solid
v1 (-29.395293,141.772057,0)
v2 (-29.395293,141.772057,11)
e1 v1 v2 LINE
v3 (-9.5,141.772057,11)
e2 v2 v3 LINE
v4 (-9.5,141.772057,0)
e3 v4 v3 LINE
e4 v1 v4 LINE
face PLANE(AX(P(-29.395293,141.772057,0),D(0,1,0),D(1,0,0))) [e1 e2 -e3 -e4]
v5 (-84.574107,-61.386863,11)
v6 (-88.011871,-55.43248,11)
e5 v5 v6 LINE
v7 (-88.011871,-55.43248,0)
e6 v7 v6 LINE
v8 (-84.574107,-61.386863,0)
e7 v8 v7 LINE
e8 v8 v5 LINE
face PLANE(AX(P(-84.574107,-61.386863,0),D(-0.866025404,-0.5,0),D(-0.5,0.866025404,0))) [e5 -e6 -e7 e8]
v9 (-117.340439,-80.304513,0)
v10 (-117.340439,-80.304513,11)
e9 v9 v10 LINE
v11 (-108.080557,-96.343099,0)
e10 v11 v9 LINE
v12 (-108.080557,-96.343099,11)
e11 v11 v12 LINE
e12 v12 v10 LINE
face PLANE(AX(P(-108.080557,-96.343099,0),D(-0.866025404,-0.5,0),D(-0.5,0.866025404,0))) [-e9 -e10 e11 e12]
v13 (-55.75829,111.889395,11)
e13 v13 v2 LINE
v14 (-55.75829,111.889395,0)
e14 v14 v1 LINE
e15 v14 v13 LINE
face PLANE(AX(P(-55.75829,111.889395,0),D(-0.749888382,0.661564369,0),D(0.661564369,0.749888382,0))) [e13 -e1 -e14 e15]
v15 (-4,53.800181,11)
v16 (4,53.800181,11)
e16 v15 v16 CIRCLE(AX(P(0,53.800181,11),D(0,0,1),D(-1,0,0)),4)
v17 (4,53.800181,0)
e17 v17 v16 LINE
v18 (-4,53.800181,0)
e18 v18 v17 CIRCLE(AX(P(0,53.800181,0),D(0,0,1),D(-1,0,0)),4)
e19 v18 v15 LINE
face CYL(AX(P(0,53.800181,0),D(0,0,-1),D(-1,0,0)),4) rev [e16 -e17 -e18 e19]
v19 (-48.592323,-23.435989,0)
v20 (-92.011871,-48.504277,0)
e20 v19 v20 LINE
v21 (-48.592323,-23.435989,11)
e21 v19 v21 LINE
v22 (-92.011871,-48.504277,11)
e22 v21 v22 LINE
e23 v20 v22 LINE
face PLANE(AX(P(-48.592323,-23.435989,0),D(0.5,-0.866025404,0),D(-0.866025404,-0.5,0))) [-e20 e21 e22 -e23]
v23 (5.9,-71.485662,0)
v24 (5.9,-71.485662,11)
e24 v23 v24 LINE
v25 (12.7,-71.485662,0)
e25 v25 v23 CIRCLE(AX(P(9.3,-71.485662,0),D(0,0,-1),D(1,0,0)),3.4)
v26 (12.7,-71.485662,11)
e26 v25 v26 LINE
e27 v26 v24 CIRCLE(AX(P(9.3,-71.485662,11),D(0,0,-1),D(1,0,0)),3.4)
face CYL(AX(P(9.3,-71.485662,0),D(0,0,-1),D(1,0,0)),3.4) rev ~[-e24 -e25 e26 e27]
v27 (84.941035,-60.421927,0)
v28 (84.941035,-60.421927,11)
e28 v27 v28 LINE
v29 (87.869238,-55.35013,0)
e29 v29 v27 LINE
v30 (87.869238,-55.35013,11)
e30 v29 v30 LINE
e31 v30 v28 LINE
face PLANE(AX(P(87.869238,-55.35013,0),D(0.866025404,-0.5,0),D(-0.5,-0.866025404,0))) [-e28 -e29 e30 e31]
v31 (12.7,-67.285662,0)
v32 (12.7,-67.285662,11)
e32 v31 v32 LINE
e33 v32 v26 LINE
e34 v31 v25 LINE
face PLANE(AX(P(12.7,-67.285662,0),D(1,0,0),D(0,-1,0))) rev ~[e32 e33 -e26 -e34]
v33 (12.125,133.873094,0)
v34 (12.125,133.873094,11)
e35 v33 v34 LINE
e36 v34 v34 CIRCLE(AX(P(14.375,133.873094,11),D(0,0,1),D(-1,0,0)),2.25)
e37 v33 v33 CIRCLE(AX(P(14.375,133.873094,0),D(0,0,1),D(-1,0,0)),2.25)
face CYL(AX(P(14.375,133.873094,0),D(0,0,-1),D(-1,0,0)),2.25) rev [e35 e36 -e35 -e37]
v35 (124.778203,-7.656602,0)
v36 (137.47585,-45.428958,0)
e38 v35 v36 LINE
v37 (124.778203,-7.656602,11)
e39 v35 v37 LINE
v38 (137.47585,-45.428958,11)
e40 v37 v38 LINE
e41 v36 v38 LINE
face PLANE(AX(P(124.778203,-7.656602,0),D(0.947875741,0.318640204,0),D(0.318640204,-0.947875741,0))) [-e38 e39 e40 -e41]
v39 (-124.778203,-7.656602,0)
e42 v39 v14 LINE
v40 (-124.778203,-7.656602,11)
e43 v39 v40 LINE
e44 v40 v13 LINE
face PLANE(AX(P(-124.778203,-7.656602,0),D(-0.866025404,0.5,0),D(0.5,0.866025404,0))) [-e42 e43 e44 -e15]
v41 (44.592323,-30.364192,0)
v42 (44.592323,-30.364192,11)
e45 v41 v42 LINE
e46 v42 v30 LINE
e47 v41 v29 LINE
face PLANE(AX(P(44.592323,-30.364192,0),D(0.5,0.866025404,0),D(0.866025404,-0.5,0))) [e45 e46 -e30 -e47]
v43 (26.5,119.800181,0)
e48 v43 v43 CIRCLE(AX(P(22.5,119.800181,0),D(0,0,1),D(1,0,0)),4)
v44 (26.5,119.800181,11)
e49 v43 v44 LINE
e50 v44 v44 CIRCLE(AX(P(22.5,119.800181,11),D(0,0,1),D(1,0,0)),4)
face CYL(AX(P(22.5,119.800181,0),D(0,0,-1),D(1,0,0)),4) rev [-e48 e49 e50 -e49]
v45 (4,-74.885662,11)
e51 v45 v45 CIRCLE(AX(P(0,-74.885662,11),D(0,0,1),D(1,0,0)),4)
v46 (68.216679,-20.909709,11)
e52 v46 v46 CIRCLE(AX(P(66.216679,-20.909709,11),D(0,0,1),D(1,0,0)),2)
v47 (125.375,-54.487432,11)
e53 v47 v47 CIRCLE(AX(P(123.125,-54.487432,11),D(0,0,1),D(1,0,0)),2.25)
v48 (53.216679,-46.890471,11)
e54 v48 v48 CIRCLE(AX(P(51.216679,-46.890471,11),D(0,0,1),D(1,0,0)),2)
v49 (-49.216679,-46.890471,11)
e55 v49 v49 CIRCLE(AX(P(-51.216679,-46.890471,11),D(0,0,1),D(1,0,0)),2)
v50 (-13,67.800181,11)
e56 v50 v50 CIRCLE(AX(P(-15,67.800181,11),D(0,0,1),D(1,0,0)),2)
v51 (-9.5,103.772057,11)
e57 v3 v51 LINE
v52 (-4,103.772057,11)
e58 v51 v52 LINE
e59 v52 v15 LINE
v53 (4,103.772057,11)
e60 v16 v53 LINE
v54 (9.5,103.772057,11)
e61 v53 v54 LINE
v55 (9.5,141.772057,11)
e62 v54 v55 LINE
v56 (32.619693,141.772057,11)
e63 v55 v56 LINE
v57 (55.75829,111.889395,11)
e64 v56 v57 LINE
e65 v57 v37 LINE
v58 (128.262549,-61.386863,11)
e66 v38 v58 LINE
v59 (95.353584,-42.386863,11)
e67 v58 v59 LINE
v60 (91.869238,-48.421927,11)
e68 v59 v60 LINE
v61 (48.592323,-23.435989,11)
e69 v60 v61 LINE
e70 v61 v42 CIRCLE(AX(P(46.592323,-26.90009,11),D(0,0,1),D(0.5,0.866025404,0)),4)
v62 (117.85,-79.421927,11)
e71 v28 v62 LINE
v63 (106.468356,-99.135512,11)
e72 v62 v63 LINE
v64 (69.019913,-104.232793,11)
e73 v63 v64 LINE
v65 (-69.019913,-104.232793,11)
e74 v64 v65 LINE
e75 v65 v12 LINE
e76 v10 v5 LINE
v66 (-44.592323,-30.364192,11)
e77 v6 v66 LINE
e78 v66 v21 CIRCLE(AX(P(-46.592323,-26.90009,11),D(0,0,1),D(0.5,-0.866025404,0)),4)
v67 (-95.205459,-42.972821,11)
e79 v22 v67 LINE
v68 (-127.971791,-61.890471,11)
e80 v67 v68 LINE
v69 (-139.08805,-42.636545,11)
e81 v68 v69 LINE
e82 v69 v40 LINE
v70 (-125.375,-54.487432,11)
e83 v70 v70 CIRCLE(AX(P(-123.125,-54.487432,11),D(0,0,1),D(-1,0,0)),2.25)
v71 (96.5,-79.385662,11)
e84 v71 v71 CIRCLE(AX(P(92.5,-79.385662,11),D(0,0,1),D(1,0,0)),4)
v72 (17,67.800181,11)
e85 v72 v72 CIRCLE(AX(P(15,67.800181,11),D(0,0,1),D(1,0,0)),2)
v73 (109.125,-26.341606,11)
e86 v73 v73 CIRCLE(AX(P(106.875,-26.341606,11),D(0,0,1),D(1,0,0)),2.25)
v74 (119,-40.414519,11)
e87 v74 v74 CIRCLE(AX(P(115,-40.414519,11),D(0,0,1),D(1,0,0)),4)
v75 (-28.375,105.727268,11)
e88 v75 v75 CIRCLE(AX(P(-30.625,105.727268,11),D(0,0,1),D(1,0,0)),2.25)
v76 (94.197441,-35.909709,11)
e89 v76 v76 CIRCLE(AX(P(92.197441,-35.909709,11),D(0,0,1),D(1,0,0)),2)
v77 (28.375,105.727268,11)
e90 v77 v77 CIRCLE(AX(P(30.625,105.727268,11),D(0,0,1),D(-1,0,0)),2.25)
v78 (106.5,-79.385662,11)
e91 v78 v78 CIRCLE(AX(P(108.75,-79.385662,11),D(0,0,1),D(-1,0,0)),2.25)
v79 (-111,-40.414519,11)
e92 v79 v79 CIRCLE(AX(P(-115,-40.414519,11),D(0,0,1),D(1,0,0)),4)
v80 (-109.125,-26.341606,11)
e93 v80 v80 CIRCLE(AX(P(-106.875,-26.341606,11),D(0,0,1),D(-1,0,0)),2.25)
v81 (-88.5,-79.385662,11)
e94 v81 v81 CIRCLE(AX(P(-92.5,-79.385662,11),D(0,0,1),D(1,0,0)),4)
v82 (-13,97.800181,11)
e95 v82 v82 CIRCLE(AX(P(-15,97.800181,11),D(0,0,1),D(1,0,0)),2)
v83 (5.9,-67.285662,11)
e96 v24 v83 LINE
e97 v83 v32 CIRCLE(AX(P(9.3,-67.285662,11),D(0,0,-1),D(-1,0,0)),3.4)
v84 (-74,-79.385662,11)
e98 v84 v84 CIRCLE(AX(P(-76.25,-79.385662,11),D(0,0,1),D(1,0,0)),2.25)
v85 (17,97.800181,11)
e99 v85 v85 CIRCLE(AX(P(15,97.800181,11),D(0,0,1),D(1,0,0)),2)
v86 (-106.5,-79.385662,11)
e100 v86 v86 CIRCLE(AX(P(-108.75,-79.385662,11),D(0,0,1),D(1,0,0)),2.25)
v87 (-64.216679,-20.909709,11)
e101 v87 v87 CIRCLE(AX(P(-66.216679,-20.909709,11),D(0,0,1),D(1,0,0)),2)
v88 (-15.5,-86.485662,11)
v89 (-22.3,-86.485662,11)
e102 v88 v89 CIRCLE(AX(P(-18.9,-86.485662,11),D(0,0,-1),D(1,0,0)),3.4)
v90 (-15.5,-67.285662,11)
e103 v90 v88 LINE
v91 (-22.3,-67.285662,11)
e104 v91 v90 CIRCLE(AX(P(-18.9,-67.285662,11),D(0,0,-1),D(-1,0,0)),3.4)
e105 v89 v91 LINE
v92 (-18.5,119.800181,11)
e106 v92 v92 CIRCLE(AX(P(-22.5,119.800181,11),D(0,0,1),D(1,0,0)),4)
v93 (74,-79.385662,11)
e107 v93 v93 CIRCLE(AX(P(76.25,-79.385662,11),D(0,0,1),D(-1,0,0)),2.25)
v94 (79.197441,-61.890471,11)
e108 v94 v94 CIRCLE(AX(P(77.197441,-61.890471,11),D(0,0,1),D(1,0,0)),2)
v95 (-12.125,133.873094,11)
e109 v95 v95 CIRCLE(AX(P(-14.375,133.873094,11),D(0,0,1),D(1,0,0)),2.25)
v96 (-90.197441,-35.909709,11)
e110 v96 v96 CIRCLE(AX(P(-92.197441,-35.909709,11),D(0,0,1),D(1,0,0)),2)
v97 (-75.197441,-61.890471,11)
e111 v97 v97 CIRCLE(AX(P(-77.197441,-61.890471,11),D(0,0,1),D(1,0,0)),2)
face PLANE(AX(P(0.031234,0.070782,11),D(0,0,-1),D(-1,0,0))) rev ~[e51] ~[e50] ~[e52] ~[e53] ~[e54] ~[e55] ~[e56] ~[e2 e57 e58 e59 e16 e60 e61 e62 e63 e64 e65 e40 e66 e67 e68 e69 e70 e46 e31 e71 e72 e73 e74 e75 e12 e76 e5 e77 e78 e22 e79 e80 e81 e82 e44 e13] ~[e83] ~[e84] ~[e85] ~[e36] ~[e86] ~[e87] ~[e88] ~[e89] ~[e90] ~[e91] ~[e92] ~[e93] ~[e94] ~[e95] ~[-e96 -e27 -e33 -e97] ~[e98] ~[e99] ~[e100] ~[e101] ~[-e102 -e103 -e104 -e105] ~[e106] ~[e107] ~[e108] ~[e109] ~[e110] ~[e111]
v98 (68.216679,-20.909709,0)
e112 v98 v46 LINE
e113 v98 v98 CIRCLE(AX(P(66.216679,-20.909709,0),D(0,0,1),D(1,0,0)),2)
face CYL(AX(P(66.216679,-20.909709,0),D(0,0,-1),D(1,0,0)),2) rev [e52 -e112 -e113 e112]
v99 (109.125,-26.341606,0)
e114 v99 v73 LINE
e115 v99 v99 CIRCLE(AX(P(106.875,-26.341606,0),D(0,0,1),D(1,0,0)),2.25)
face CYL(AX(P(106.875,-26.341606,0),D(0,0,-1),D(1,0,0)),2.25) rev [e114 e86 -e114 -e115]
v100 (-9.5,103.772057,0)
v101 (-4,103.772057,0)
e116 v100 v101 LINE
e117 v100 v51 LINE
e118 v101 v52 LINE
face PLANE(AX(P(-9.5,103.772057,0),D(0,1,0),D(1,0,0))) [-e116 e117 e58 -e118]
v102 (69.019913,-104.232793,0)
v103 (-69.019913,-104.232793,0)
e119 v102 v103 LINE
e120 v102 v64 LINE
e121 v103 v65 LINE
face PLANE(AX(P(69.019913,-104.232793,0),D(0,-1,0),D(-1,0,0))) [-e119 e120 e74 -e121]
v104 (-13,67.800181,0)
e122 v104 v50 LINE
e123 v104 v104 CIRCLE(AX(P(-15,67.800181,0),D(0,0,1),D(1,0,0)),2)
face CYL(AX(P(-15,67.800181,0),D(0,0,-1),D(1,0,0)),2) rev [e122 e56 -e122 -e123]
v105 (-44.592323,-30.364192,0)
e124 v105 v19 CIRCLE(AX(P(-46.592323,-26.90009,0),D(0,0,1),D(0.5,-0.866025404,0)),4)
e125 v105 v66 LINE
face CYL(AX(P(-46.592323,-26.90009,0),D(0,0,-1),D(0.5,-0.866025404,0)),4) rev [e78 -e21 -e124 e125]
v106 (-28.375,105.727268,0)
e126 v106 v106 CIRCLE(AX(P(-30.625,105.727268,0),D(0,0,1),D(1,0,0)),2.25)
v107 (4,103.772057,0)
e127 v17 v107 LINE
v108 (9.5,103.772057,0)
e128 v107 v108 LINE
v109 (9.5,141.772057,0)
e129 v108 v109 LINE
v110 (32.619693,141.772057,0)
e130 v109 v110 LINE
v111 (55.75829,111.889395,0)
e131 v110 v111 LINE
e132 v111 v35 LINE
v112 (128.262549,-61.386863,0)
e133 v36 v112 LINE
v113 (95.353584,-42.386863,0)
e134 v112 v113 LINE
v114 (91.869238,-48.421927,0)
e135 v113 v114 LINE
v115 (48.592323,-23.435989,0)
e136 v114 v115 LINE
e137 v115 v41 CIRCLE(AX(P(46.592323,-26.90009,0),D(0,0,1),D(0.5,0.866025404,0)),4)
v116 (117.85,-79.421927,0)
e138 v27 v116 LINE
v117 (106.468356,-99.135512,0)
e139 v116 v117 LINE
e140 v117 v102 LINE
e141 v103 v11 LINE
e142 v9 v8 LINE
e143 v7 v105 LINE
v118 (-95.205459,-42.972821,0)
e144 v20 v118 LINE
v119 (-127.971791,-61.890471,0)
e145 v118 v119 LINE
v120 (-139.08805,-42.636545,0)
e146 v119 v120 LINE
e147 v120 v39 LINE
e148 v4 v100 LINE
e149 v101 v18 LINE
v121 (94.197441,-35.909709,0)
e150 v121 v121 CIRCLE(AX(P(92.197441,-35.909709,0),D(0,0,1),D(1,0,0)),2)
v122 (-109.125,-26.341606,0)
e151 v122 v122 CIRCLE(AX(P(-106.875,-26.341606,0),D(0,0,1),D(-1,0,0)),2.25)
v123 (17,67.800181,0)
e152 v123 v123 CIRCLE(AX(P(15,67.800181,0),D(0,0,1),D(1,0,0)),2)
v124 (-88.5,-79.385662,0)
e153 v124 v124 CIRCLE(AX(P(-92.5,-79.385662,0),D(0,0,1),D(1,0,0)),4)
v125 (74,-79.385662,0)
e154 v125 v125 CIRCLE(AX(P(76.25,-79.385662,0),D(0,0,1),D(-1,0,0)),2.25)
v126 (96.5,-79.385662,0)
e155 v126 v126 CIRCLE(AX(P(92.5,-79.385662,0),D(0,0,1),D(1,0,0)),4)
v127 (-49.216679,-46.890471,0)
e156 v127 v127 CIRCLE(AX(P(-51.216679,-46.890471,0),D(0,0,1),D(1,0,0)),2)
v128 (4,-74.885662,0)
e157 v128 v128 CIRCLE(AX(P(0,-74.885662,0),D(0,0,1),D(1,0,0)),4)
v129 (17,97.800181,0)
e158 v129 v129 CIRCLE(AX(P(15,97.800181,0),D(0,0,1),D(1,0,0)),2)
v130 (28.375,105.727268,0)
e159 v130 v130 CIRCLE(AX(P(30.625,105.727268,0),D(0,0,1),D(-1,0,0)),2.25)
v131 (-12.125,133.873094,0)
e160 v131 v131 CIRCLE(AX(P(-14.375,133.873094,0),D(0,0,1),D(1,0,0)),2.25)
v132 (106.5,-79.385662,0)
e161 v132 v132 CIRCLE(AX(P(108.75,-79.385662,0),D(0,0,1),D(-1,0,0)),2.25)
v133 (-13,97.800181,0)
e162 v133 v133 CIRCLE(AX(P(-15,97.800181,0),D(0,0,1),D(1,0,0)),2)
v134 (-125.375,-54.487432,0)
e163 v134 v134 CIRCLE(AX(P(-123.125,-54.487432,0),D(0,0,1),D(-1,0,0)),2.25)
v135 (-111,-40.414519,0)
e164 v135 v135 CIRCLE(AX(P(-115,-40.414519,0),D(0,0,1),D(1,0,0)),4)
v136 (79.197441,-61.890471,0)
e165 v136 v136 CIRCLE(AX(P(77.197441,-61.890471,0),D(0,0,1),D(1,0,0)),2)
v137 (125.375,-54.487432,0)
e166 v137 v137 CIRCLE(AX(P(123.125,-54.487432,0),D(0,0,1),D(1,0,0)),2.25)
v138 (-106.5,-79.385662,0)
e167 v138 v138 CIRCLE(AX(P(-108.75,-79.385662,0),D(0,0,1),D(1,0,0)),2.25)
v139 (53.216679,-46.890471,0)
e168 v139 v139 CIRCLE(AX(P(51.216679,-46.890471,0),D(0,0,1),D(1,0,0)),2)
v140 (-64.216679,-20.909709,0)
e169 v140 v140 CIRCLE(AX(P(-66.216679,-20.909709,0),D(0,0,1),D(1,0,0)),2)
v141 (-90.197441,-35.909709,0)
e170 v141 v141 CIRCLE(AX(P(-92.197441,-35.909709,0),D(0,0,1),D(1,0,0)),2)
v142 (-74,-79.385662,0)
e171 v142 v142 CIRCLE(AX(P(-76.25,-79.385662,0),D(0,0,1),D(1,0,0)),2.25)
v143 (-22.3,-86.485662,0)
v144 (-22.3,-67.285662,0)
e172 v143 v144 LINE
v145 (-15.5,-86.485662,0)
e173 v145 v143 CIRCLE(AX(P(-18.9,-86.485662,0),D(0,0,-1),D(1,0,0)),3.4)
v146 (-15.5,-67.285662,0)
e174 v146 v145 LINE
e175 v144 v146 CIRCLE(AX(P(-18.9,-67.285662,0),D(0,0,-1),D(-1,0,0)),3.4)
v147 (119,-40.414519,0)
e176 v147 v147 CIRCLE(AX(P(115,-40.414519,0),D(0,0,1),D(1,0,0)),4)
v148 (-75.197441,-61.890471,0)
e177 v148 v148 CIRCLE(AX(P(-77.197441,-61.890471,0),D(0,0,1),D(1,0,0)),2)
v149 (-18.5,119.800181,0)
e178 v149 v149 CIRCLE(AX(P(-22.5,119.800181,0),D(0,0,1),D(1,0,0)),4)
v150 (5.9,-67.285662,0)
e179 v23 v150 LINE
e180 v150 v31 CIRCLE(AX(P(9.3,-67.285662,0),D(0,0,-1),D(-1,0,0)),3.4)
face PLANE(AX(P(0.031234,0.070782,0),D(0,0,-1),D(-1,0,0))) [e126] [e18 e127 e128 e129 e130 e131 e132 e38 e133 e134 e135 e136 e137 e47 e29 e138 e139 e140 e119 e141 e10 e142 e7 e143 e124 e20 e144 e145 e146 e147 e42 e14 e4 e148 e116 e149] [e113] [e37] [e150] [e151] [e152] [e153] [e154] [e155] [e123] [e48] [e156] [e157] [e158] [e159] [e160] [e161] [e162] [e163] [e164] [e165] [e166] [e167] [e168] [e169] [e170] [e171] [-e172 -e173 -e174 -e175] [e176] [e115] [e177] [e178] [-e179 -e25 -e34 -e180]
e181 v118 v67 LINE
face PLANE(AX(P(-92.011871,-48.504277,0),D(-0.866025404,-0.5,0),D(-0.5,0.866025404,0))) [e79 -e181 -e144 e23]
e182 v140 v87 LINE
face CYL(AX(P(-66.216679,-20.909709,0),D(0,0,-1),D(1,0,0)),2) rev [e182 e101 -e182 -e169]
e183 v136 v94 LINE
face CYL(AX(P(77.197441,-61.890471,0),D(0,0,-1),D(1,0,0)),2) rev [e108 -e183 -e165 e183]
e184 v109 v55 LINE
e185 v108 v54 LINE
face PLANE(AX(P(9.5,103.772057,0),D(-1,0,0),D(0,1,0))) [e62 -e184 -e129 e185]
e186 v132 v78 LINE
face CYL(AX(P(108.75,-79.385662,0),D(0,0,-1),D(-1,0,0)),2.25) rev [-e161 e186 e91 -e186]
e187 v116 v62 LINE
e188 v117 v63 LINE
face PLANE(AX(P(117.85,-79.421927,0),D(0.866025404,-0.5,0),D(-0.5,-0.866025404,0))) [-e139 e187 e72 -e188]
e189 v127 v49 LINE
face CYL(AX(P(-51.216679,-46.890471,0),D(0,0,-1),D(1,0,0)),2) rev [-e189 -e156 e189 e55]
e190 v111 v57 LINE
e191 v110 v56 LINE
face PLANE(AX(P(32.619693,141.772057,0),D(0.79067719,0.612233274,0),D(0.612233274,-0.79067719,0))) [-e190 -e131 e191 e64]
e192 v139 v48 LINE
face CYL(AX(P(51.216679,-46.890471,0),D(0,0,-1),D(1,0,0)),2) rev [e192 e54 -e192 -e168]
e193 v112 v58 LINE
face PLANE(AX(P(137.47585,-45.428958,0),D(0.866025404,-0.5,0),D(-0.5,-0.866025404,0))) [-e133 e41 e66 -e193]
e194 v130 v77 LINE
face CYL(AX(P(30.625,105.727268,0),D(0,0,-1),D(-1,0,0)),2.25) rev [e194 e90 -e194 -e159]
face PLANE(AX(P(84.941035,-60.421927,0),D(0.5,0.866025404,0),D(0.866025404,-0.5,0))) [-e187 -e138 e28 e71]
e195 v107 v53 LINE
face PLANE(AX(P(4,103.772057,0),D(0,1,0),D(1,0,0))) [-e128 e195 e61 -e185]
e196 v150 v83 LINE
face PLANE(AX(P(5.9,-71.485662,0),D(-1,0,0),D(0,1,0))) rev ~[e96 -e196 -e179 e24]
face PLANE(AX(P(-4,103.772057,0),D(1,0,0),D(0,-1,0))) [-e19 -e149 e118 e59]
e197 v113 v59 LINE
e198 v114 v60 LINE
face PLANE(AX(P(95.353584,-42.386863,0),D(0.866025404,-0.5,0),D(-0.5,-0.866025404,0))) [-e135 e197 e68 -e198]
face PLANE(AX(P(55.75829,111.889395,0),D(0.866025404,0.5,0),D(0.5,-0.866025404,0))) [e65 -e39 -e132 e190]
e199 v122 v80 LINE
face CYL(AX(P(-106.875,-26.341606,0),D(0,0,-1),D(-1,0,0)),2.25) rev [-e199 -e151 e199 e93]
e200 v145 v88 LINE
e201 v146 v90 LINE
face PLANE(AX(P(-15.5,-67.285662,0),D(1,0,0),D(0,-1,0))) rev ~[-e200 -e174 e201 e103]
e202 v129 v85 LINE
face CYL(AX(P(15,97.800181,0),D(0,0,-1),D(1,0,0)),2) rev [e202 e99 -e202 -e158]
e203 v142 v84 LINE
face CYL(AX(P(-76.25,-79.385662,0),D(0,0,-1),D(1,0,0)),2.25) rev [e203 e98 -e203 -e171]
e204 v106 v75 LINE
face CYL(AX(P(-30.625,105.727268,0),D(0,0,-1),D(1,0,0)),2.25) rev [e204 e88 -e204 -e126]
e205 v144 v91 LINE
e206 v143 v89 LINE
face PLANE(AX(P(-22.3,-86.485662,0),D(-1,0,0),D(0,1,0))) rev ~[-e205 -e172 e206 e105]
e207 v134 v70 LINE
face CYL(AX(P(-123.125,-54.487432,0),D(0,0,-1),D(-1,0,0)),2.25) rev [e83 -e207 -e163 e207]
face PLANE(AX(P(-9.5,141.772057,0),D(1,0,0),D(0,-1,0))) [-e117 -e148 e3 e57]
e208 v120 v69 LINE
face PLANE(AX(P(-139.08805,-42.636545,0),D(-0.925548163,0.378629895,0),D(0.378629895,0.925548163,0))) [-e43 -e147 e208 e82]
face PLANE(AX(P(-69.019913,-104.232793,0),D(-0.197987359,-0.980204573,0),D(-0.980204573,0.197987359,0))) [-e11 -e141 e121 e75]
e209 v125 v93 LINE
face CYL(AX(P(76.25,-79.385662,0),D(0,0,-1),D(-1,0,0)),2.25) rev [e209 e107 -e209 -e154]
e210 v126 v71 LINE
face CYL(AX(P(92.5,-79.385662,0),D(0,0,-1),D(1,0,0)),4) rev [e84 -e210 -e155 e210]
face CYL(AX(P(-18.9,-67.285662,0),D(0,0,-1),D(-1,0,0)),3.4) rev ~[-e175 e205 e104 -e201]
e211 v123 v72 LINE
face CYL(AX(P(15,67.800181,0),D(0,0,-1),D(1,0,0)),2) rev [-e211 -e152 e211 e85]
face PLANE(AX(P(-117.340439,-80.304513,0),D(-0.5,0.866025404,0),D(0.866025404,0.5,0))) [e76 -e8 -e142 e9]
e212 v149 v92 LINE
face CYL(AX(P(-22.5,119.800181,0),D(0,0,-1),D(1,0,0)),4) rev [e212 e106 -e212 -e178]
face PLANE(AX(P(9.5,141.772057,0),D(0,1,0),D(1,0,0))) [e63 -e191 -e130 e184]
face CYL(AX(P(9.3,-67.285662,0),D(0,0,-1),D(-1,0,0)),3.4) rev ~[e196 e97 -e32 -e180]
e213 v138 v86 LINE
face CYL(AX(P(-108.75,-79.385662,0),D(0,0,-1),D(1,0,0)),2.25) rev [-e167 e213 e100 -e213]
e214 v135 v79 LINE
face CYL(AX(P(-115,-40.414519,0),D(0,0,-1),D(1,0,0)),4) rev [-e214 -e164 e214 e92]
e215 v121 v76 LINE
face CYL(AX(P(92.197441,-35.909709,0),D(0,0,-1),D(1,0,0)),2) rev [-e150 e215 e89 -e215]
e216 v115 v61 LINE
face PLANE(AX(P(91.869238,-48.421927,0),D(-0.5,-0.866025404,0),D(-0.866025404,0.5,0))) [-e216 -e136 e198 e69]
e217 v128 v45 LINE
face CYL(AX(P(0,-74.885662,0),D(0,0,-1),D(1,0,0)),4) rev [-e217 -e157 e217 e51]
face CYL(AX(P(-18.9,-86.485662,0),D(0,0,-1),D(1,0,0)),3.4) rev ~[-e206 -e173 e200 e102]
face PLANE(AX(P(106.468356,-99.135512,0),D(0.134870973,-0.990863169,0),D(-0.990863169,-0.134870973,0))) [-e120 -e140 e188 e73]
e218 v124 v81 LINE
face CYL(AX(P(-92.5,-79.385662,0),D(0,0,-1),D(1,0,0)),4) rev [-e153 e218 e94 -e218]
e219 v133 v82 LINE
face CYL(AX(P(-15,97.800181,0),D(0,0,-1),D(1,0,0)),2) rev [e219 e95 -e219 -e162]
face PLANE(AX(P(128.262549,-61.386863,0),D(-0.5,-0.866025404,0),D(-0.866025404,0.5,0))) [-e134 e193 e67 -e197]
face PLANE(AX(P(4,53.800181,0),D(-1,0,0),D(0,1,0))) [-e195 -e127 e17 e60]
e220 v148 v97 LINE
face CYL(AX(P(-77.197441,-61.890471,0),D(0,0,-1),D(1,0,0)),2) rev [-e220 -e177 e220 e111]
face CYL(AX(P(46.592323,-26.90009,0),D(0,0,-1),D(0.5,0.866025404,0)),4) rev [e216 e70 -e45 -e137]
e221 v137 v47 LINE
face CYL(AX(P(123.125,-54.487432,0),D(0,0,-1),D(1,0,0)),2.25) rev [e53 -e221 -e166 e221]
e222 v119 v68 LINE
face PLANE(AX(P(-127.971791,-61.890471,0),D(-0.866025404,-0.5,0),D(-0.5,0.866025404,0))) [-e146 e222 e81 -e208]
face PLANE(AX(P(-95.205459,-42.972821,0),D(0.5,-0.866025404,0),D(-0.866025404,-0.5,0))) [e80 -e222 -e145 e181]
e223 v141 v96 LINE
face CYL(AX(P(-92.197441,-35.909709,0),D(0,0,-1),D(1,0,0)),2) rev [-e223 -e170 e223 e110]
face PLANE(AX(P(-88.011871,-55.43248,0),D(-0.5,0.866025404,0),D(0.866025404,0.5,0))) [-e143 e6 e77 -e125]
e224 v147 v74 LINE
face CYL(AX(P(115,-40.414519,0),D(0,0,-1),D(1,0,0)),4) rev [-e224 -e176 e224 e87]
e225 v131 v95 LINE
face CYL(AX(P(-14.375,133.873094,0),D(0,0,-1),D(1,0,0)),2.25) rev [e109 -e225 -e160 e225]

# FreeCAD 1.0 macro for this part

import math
import FreeCAD as App
import Part
import Sketcher

V = App.Vector

doc = App.newDocument("Part")
body = doc.addObject("PartDesign::Body", "Body")

# Sketch on XY plane
sketch1 = body.newObject("Sketcher::SketchObject", "Sketch")
sketch1.AttachmentSupport = (doc.getObject("XY_Plane"), [""])
sketch1.MapMode = "FlatFace"
sketch1.addGeometry(Part.LineSegment(V(124.778203, -7.656602, 0), V(55.75829, 111.889395, 0)), False)
sketch1.addGeometry(Part.LineSegment(V(55.75829, 111.889395, 0), V(32.619693, 141.772057, 0)), False)
sketch1.addGeometry(Part.LineSegment(V(32.619693, 141.772057, 0), V(9.5, 141.772057, 0)), False)
sketch1.addGeometry(Part.LineSegment(V(9.5, 141.772057, 0), V(9.5, 103.772057, 0)), False)
sketch1.addGeometry(Part.LineSegment(V(9.5, 103.772057, 0), V(4, 103.772057, 0)), False)
sketch1.addGeometry(Part.LineSegment(V(4, 103.772057, 0), V(4, 53.800181, 0)), False)
sketch1.addGeometry(Part.ArcOfCircle(Part.Circle(V(0, 53.800181, 0), V(0, 0, 1), 4), math.radians(180), math.radians(360)), False)
sketch1.addGeometry(Part.LineSegment(V(-4, 53.800181, 0), V(-4, 103.772057, 0)), False)
sketch1.addGeometry(Part.LineSegment(V(-4, 103.772057, 0), V(-9.5, 103.772057, 0)), False)
sketch1.addGeometry(Part.LineSegment(V(-9.5, 103.772057, 0), V(-9.5, 141.772057, 0)), False)
sketch1.addGeometry(Part.LineSegment(V(-9.5, 141.772057, 0), V(-29.395293, 141.772057, 0)), False)
sketch1.addGeometry(Part.LineSegment(V(-29.395293, 141.772057, 0), V(-55.75829, 111.889395, 0)), False)
sketch1.addGeometry(Part.LineSegment(V(-55.75829, 111.889395, 0), V(-124.778203, -7.656602, 0)), False)
sketch1.addGeometry(Part.LineSegment(V(-124.778203, -7.656602, 0), V(-139.08805, -42.636545, 0)), False)
sketch1.addGeometry(Part.LineSegment(V(-139.08805, -42.636545, 0), V(-127.971791, -61.890471, 0)), False)
sketch1.addGeometry(Part.LineSegment(V(-127.971791, -61.890471, 0), V(-95.205459, -42.972821, 0)), False)
sketch1.addGeometry(Part.LineSegment(V(-95.205459, -42.972821, 0), V(-92.011871, -48.504277, 0)), False)
sketch1.addGeometry(Part.LineSegment(V(-92.011871, -48.504277, 0), V(-48.592323, -23.435989, 0)), False)
sketch1.addGeometry(Part.ArcOfCircle(Part.Circle(V(-46.592323, -26.90009, 0), V(0, 0, 1), 4), math.radians(-60), math.radians(120)), False)
sketch1.addGeometry(Part.LineSegment(V(-44.592323, -30.364192, 0), V(-88.011871, -55.43248, 0)), False)
sketch1.addGeometry(Part.LineSegment(V(-88.011871, -55.43248, 0), V(-84.574107, -61.386863, 0)), False)
sketch1.addGeometry(Part.LineSegment(V(-84.574107, -61.386863, 0), V(-117.340439, -80.304513, 0)), False)
sketch1.addGeometry(Part.LineSegment(V(-117.340439, -80.304513, 0), V(-108.080557, -96.343099, 0)), False)
sketch1.addGeometry(Part.LineSegment(V(-108.080557, -96.343099, 0), V(-69.019913, -104.232793, 0)), False)
sketch1.addGeometry(Part.LineSegment(V(-69.019913, -104.232793, 0), V(69.019913, -104.232793, 0)), False)
sketch1.addGeometry(Part.LineSegment(V(69.019913, -104.232793, 0), V(106.468356, -99.135512, 0)), False)
sketch1.addGeometry(Part.LineSegment(V(106.468356, -99.135512, 0), V(117.85, -79.421927, 0)), False)
sketch1.addGeometry(Part.LineSegment(V(117.85, -79.421927, 0), V(84.941035, -60.421927, 0)), False)
sketch1.addGeometry(Part.LineSegment(V(84.941035, -60.421927, 0), V(87.869238, -55.35013, 0)), False)
sketch1.addGeometry(Part.LineSegment(V(87.869238, -55.35013, 0), V(44.592323, -30.364192, 0)), False)
sketch1.addGeometry(Part.ArcOfCircle(Part.Circle(V(46.592323, -26.90009, 0), V(0, 0, 1), 4), math.radians(60), math.radians(240)), False)
sketch1.addGeometry(Part.LineSegment(V(48.592323, -23.435989, 0), V(91.869238, -48.421927, 0)), False)
sketch1.addGeometry(Part.LineSegment(V(91.869238, -48.421927, 0), V(95.353584, -42.386863, 0)), False)
sketch1.addGeometry(Part.LineSegment(V(95.353584, -42.386863, 0), V(128.262549, -61.386863, 0)), False)
sketch1.addGeometry(Part.LineSegment(V(128.262549, -61.386863, 0), V(137.47585, -45.428958, 0)), False)
sketch1.addGeometry(Part.LineSegment(V(137.47585, -45.428958, 0), V(124.778203, -7.656602, 0)), False)
sketch1.addGeometry(Part.Circle(V(108.75, -79.385662, 0), V(0, 0, 1), 2.25), False)
sketch1.addGeometry(Part.Circle(V(92.5, -79.385662, 0), V(0, 0, 1), 4), False)
sketch1.addGeometry(Part.Circle(V(76.25, -79.385662, 0), V(0, 0, 1), 2.25), False)
sketch1.addGeometry(Part.Circle(V(77.197441, -61.890471, 0), V(0, 0, 1), 2), False)
sketch1.addGeometry(Part.Circle(V(123.125, -54.487432, 0), V(0, 0, 1), 2.25), False)
sketch1.addGeometry(Part.Circle(V(115, -40.414519, 0), V(0, 0, 1), 4), False)
sketch1.addGeometry(Part.Circle(V(92.197441, -35.909709, 0), V(0, 0, 1), 2), False)
sketch1.addGeometry(Part.LineSegment(V(12.7, -67.285662, 0), V(12.7, -71.485662, 0)), False)
sketch1.addGeometry(Part.ArcOfCircle(Part.Circle(V(9.3, -71.485662, 0), V(0, 0, 1), 3.4), math.radians(180), math.radians(360)), False)
sketch1.addGeometry(Part.LineSegment(V(5.9, -71.485662, 0), V(5.9, -67.285662, 0)), False)
sketch1.addGeometry(Part.ArcOfCircle(Part.Circle(V(9.3, -67.285662, 0), V(0, 0, 1), 3.4), math.radians(0), math.radians(180)), False)
sketch1.addGeometry(Part.Circle(V(0, -74.885662, 0), V(0, 0, 1), 4), False)
sketch1.addGeometry(Part.Circle(V(51.216679, -46.890471, 0), V(0, 0, 1), 2), False)
sketch1.addGeometry(Part.Circle(V(106.875, -26.341606, 0), V(0, 0, 1), 2.25), False)
sketch1.addGeometry(Part.Circle(V(66.216679, -20.909709, 0), V(0, 0, 1), 2), False)
sketch1.addGeometry(Part.LineSegment(V(-15.5, -67.285662, 0), V(-15.5, -86.485662, 0)), False)
sketch1.addGeometry(Part.ArcOfCircle(Part.Circle(V(-18.9, -86.485662, 0), V(0, 0, 1), 3.4), math.radians(180), math.radians(360)), False)
sketch1.addGeometry(Part.LineSegment(V(-22.3, -86.485662, 0), V(-22.3, -67.285662, 0)), False)
sketch1.addGeometry(Part.ArcOfCircle(Part.Circle(V(-18.9, -67.285662, 0), V(0, 0, 1), 3.4), math.radians(0), math.radians(180)), False)
sketch1.addGeometry(Part.Circle(V(-51.216679, -46.890471, 0), V(0, 0, 1), 2), False)
sketch1.addGeometry(Part.Circle(V(-76.25, -79.385662, 0), V(0, 0, 1), 2.25), False)
sketch1.addGeometry(Part.Circle(V(-92.5, -79.385662, 0), V(0, 0, 1), 4), False)
sketch1.addGeometry(Part.Circle(V(-77.197441, -61.890471, 0), V(0, 0, 1), 2), False)
sketch1.addGeometry(Part.Circle(V(-108.75, -79.385662, 0), V(0, 0, 1), 2.25), False)
sketch1.addGeometry(Part.Circle(V(-92.197441, -35.909709, 0), V(0, 0, 1), 2), False)
sketch1.addGeometry(Part.Circle(V(-123.125, -54.487432, 0), V(0, 0, 1), 2.25), False)
sketch1.addGeometry(Part.Circle(V(-115, -40.414519, 0), V(0, 0, 1), 4), False)
sketch1.addGeometry(Part.Circle(V(-66.216679, -20.909709, 0), V(0, 0, 1), 2), False)
sketch1.addGeometry(Part.Circle(V(-106.875, -26.341606, 0), V(0, 0, 1), 2.25), False)
sketch1.addGeometry(Part.Circle(V(15, 67.800181, 0), V(0, 0, 1), 2), False)
sketch1.addGeometry(Part.Circle(V(30.625, 105.727268, 0), V(0, 0, 1), 2.25), False)
sketch1.addGeometry(Part.Circle(V(15, 97.800181, 0), V(0, 0, 1), 2), False)
sketch1.addGeometry(Part.Circle(V(22.5, 119.800181, 0), V(0, 0, 1), 4), False)
sketch1.addGeometry(Part.Circle(V(14.375, 133.873094, 0), V(0, 0, 1), 2.25), False)
sketch1.addGeometry(Part.Circle(V(-15, 67.800181, 0), V(0, 0, 1), 2), False)
sketch1.addGeometry(Part.Circle(V(-15, 97.800181, 0), V(0, 0, 1), 2), False)
sketch1.addGeometry(Part.Circle(V(-30.625, 105.727268, 0), V(0, 0, 1), 2.25), False)
sketch1.addGeometry(Part.Circle(V(-22.5, 119.800181, 0), V(0, 0, 1), 4), False)
sketch1.addGeometry(Part.Circle(V(-14.375, 133.873094, 0), V(0, 0, 1), 2.25), False)
sketch1.addConstraint(Sketcher.Constraint("Coincident", 0, 2, 1, 1))
sketch1.addConstraint(Sketcher.Constraint("Coincident", 1, 2, 2, 1))
sketch1.addConstraint(Sketcher.Constraint("Coincident", 2, 2, 3, 1))
sketch1.addConstraint(Sketcher.Constraint("Coincident", 3, 2, 4, 1))
sketch1.addConstraint(Sketcher.Constraint("Coincident", 4, 2, 5, 1))
sketch1.addConstraint(Sketcher.Constraint("Coincident", 5, 2, 6, 2))
sketch1.addConstraint(Sketcher.Constraint("Coincident", 6, 1, 7, 1))
sketch1.addConstraint(Sketcher.Constraint("Coincident", 7, 2, 8, 1))
sketch1.addConstraint(Sketcher.Constraint("Coincident", 8, 2, 9, 1))
sketch1.addConstraint(Sketcher.Constraint("Coincident", 9, 2, 10, 1))
sketch1.addConstraint(Sketcher.Constraint("Coincident", 10, 2, 11, 1))
sketch1.addConstraint(Sketcher.Constraint("Coincident", 11, 2, 12, 1))
sketch1.addConstraint(Sketcher.Constraint("Coincident", 12, 2, 13, 1))
sketch1.addConstraint(Sketcher.Constraint("Coincident", 13, 2, 14, 1))
sketch1.addConstraint(Sketcher.Constraint("Coincident", 14, 2, 15, 1))
sketch1.addConstraint(Sketcher.Constraint("Coincident", 15, 2, 16, 1))
sketch1.addConstraint(Sketcher.Constraint("Coincident", 16, 2, 17, 1))
sketch1.addConstraint(Sketcher.Constraint("Coincident", 17, 2, 18, 2))
sketch1.addConstraint(Sketcher.Constraint("Coincident", 18, 1, 19, 1))
sketch1.addConstraint(Sketcher.Constraint("Coincident", 19, 2, 20, 1))
sketch1.addConstraint(Sketcher.Constraint("Coincident", 20, 2, 21, 1))
sketch1.addConstraint(Sketcher.Constraint("Coincident", 21, 2, 22, 1))
sketch1.addConstraint(Sketcher.Constraint("Coincident", 22, 2, 23, 1))
sketch1.addConstraint(Sketcher.Constraint("Coincident", 23, 2, 24, 1))
sketch1.addConstraint(Sketcher.Constraint("Coincident", 24, 2, 25, 1))
sketch1.addConstraint(Sketcher.Constraint("Coincident", 25, 2, 26, 1))
sketch1.addConstraint(Sketcher.Constraint("Coincident", 26, 2, 27, 1))
sketch1.addConstraint(Sketcher.Constraint("Coincident", 27, 2, 28, 1))
sketch1.addConstraint(Sketcher.Constraint("Coincident", 28, 2, 29, 1))
sketch1.addConstraint(Sketcher.Constraint("Coincident", 29, 2, 30, 2))
sketch1.addConstraint(Sketcher.Constraint("Coincident", 30, 1, 31, 1))
sketch1.addConstraint(Sketcher.Constraint("Coincident", 31, 2, 32, 1))
sketch1.addConstraint(Sketcher.Constraint("Coincident", 32, 2, 33, 1))
sketch1.addConstraint(Sketcher.Constraint("Coincident", 33, 2, 34, 1))
sketch1.addConstraint(Sketcher.Constraint("Coincident", 34, 2, 35, 1))
sketch1.addConstraint(Sketcher.Constraint("Coincident", 35, 2, 0, 1))
sketch1.addConstraint(Sketcher.Constraint("Coincident", 43, 2, 44, 2))
sketch1.addConstraint(Sketcher.Constraint("Coincident", 44, 1, 45, 1))
sketch1.addConstraint(Sketcher.Constraint("Coincident", 45, 2, 46, 2))
sketch1.addConstraint(Sketcher.Constraint("Coincident", 46, 1, 43, 1))
sketch1.addConstraint(Sketcher.Constraint("Coincident", 51, 2, 52, 2))
sketch1.addConstraint(Sketcher.Constraint("Coincident", 52, 1, 53, 1))
sketch1.addConstraint(Sketcher.Constraint("Coincident", 53, 2, 54, 2))
sketch1.addConstraint(Sketcher.Constraint("Coincident", 54, 1, 51, 1))
sketch1.addConstraint(Sketcher.Constraint("Horizontal", 2))
sketch1.addConstraint(Sketcher.Constraint("Vertical", 3))
sketch1.addConstraint(Sketcher.Constraint("Horizontal", 4))
sketch1.addConstraint(Sketcher.Constraint("Vertical", 5))
sketch1.addConstraint(Sketcher.Constraint("Vertical", 7))
sketch1.addConstraint(Sketcher.Constraint("Horizontal", 8))
sketch1.addConstraint(Sketcher.Constraint("Vertical", 9))
sketch1.addConstraint(Sketcher.Constraint("Horizontal", 10))
sketch1.addConstraint(Sketcher.Constraint("Horizontal", 24))
sketch1.addConstraint(Sketcher.Constraint("Vertical", 43))
sketch1.addConstraint(Sketcher.Constraint("Vertical", 45))
sketch1.addConstraint(Sketcher.Constraint("Vertical", 51))
sketch1.addConstraint(Sketcher.Constraint("Vertical", 53))
sketch1.addConstraint(Sketcher.Constraint("PointOnObject", 6, 3, -2))
sketch1.addConstraint(Sketcher.Constraint("PointOnObject", 47, 3, -2))
sketch1.addConstraint(Sketcher.Constraint("Diameter", 37, 8.0))
sketch1.addConstraint(Sketcher.Constraint("Diameter", 39, 4.0))
sketch1.addConstraint(Sketcher.Constraint("Diameter", 41, 8.0))
sketch1.addConstraint(Sketcher.Constraint("Diameter", 42, 4.0))
sketch1.addConstraint(Sketcher.Constraint("Diameter", 47, 8.0))
sketch1.addConstraint(Sketcher.Constraint("Diameter", 48, 4.0))
sketch1.addConstraint(Sketcher.Constraint("Diameter", 50, 4.0))
sketch1.addConstraint(Sketcher.Constraint("Diameter", 55, 4.0))
sketch1.addConstraint(Sketcher.Constraint("Diameter", 57, 8.0))
sketch1.addConstraint(Sketcher.Constraint("Diameter", 58, 4.0))
sketch1.addConstraint(Sketcher.Constraint("Diameter", 60, 4.0))
sketch1.addConstraint(Sketcher.Constraint("Diameter", 62, 8.0))
sketch1.addConstraint(Sketcher.Constraint("Diameter", 63, 4.0))
sketch1.addConstraint(Sketcher.Constraint("Diameter", 65, 4.0))
sketch1.addConstraint(Sketcher.Constraint("Diameter", 67, 4.0))
sketch1.addConstraint(Sketcher.Constraint("Diameter", 68, 8.0))
sketch1.addConstraint(Sketcher.Constraint("Diameter", 70, 4.0))
sketch1.addConstraint(Sketcher.Constraint("Diameter", 71, 4.0))
sketch1.addConstraint(Sketcher.Constraint("Diameter", 73, 8.0))
sketch1.addConstraint(Sketcher.Constraint("Radius", 6, 4.0))
sketch1.addConstraint(Sketcher.Constraint("Radius", 18, 4.0))
sketch1.addConstraint(Sketcher.Constraint("Radius", 30, 4.0))
sketch1.addConstraint(Sketcher.Constraint("Diameter", 36, 4.5))
sketch1.addConstraint(Sketcher.Constraint("Diameter", 38, 4.5))
sketch1.addConstraint(Sketcher.Constraint("Diameter", 40, 4.5))
sketch1.addConstraint(Sketcher.Constraint("Diameter", 49, 4.5))
sketch1.addConstraint(Sketcher.Constraint("Diameter", 56, 4.5))
sketch1.addConstraint(Sketcher.Constraint("Diameter", 59, 4.5))
sketch1.addConstraint(Sketcher.Constraint("Diameter", 61, 4.5))
sketch1.addConstraint(Sketcher.Constraint("Diameter", 64, 4.5))
sketch1.addConstraint(Sketcher.Constraint("Diameter", 66, 4.5))
sketch1.addConstraint(Sketcher.Constraint("Diameter", 69, 4.5))
sketch1.addConstraint(Sketcher.Constraint("Diameter", 72, 4.5))
sketch1.addConstraint(Sketcher.Constraint("Diameter", 74, 4.5))
sketch1.addConstraint(Sketcher.Constraint("Radius", 44, 3.4))
sketch1.addConstraint(Sketcher.Constraint("Radius", 52, 3.4))
sketch1.addConstraint(Sketcher.Constraint("DistanceY", 3, 2, 3, 1, 38.0))
sketch1.addConstraint(Sketcher.Constraint("DistanceY", 9, 1, 9, 2, 38.0))
sketch1.addConstraint(Sketcher.Constraint("Distance", 27, 38.0))
sketch1.addConstraint(Sketcher.Constraint("Distance", 33, 38.0))
sketch1.addConstraint(Sketcher.Constraint("DistanceX", 4, 2, 4, 1, 5.5))
sketch1.addConstraint(Sketcher.Constraint("DistanceX", 8, 2, 8, 1, 5.5))
sketch1.addConstraint(Sketcher.Constraint("DistanceY", 43, 2, 43, 1, 4.2))
sketch1.addConstraint(Sketcher.Constraint("DistanceY", 45, 1, 45, 2, 4.2))
sketch1.addConstraint(Sketcher.Constraint("DistanceY", 51, 2, 51, 1, 19.2))
sketch1.addConstraint(Sketcher.Constraint("DistanceY", 53, 1, 53, 2, 19.2))
sketch1.addConstraint(Sketcher.Constraint("DistanceX", -1, 1, 41, 3, 115.0))
sketch1.addConstraint(Sketcher.Constraint("DistanceX", 62, 3, -1, 1, 115.0))
sketch1.addConstraint(Sketcher.Constraint("DistanceX", -1, 1, 65, 3, 15.0))
sketch1.addConstraint(Sketcher.Constraint("DistanceX", -1, 1, 67, 3, 15.0))
sketch1.addConstraint(Sketcher.Constraint("DistanceX", 70, 3, -1, 1, 15.0))
sketch1.addConstraint(Sketcher.Constraint("DistanceX", 71, 3, -1, 1, 15.0))
sketch1.addConstraint(Sketcher.Constraint("DistanceX", -1, 1, 37, 3, 92.5))
sketch1.addConstraint(Sketcher.Constraint("DistanceX", -1, 1, 44, 3, 9.3))
sketch1.addConstraint(Sketcher.Constraint("DistanceX", 52, 3, -1, 1, 18.9))
sketch1.addConstraint(Sketcher.Constraint("DistanceX", 57, 3, -1, 1, 92.5))
sketch1.addConstraint(Sketcher.Constraint("DistanceX", -1, 1, 68, 3, 22.5))
sketch1.addConstraint(Sketcher.Constraint("DistanceX", 73, 3, -1, 1, 22.5))
sketch1.addConstraint(Sketcher.Constraint("DistanceX", -1, 1, 36, 3, 108.75))
sketch1.addConstraint(Sketcher.Constraint("DistanceX", -1, 1, 38, 3, 76.25))
sketch1.addConstraint(Sketcher.Constraint("DistanceX", 56, 3, -1, 1, 76.25))
sketch1.addConstraint(Sketcher.Constraint("DistanceX", 59, 3, -1, 1, 108.75))
sketch1.addConstraint(Sketcher.Constraint("DistanceX", -1, 1, 26, 2, 117.85))
sketch1.addConstraint(Sketcher.Constraint("DistanceX", -1, 1, 40, 3, 123.125))
sketch1.addConstraint(Sketcher.Constraint("DistanceX", -1, 1, 49, 3, 106.875))
sketch1.addConstraint(Sketcher.Constraint("DistanceX", 61, 3, -1, 1, 123.125))
sketch1.addConstraint(Sketcher.Constraint("DistanceX", 64, 3, -1, 1, 106.875))
sketch1.addConstraint(Sketcher.Constraint("DistanceX", -1, 1, 66, 3, 30.625))
sketch1.addConstraint(Sketcher.Constraint("DistanceX", -1, 1, 69, 3, 14.375))
sketch1.addConstraint(Sketcher.Constraint("DistanceX", 72, 3, -1, 1, 30.625))
sketch1.addConstraint(Sketcher.Constraint("DistanceX", 74, 3, -1, 1, 14.375))
sketch1.addConstraint(Sketcher.Constraint("Distance", 15, 37.835301))
sketch1.addConstraint(Sketcher.Constraint("Distance", 21, 37.835301))
sketch1.addConstraint(Sketcher.Constraint("Distance", 34, 18.426601))
sketch1.addConstraint(Sketcher.Constraint("DistanceY", 12, 2, -1, 1, 7.656602))
sketch1.addConstraint(Sketcher.Constraint("DistanceY", 22, 2, -1, 1, 96.343099))
sketch1.addConstraint(Sketcher.Constraint("DistanceY", 35, 2, -1, 1, 7.656602))
sketch1.addConstraint(Sketcher.Constraint("Distance", 1, 37.793758))
sketch1.addConstraint(Sketcher.Constraint("Distance", 11, 39.849481))
sketch1.addConstraint(Sketcher.Constraint("Distance", 13, 37.793758))
sketch1.addConstraint(Sketcher.Constraint("Distance", 14, 22.232519))
sketch1.addConstraint(Sketcher.Constraint("Distance", 20, 6.875529))
sketch1.addConstraint(Sketcher.Constraint("Distance", 23, 39.849481))
sketch1.addConstraint(Sketcher.Constraint("Distance", 25, 37.793758))
sketch1.addConstraint(Sketcher.Constraint("Distance", 32, 6.968692))
sketch1.addConstraint(Sketcher.Constraint("Distance", 35, 39.849481))
sketch1.addConstraint(Sketcher.Constraint("DistanceX", 2, 2, 2, 1, 23.119693))
sketch1.addConstraint(Sketcher.Constraint("DistanceX", 10, 2, 10, 1, 19.895293))
sketch1.addConstraint(Sketcher.Constraint("DistanceX", 24, 1, 24, 2, 138.039827))
sketch1.addConstraint(Sketcher.Constraint("DistanceY", 5, 2, 5, 1, 49.971877))
sketch1.addConstraint(Sketcher.Constraint("DistanceY", 7, 1, 7, 2, 49.971877))
sketch1.addConstraint(Sketcher.Constraint("DistanceY", -1, 1, 6, 3, 53.800181))
sketch1.addConstraint(Sketcher.Constraint("DistanceY", 18, 3, -1, 1, 26.90009))
sketch1.addConstraint(Sketcher.Constraint("DistanceY", 30, 3, -1, 1, 26.90009))
sketch1.addConstraint(Sketcher.Constraint("DistanceX", -1, 1, 39, 3, 77.197441))
sketch1.addConstraint(Sketcher.Constraint("DistanceY", 39, 3, -1, 1, 61.890471))
sketch1.addConstraint(Sketcher.Constraint("DistanceY", 40, 3, -1, 1, 54.487432))
sketch1.addConstraint(Sketcher.Constraint("DistanceY", 41, 3, -1, 1, 40.414519))
sketch1.addConstraint(Sketcher.Constraint("DistanceX", -1, 1, 42, 3, 92.197441))
sketch1.addConstraint(Sketcher.Constraint("DistanceY", 42, 3, -1, 1, 35.909709))
sketch1.addConstraint(Sketcher.Constraint("DistanceX", -1, 1, 48, 3, 51.216679))
sketch1.addConstraint(Sketcher.Constraint("DistanceY", 48, 3, -1, 1, 46.890471))
sketch1.addConstraint(Sketcher.Constraint("DistanceX", -1, 1, 50, 3, 66.216679))
sketch1.addConstraint(Sketcher.Constraint("DistanceY", 50, 3, -1, 1, 20.909709))
sketch1.addConstraint(Sketcher.Constraint("DistanceX", 55, 3, -1, 1, 51.216679))
sketch1.addConstraint(Sketcher.Constraint("DistanceY", 55, 3, -1, 1, 46.890471))
sketch1.addConstraint(Sketcher.Constraint("DistanceX", 58, 3, -1, 1, 77.197441))
sketch1.addConstraint(Sketcher.Constraint("DistanceY", 58, 3, -1, 1, 61.890471))
sketch1.addConstraint(Sketcher.Constraint("DistanceX", 60, 3, -1, 1, 92.197441))
sketch1.addConstraint(Sketcher.Constraint("DistanceY", 60, 3, -1, 1, 35.909709))
sketch1.addConstraint(Sketcher.Constraint("DistanceY", 61, 3, -1, 1, 54.487432))
sketch1.addConstraint(Sketcher.Constraint("DistanceY", 62, 3, -1, 1, 40.414519))
sketch1.addConstraint(Sketcher.Constraint("DistanceX", 63, 3, -1, 1, 66.216679))
sketch1.addConstraint(Sketcher.Constraint("DistanceY", 63, 3, -1, 1, 20.909709))
sketch1.addConstraint(Sketcher.Constraint("DistanceY", -1, 1, 65, 3, 67.800181))
sketch1.addConstraint(Sketcher.Constraint("DistanceY", -1, 1, 66, 3, 105.727268))
sketch1.addConstraint(Sketcher.Constraint("DistanceY", -1, 1, 67, 3, 97.800181))
sketch1.addConstraint(Sketcher.Constraint("DistanceY", -1, 1, 68, 3, 119.800181))
sketch1.addConstraint(Sketcher.Constraint("DistanceY", -1, 1, 70, 3, 67.800181))
sketch1.addConstraint(Sketcher.Constraint("DistanceY", -1, 1, 71, 3, 97.800181))
sketch1.addConstraint(Sketcher.Constraint("DistanceY", -1, 1, 72, 3, 105.727268))
sketch1.addConstraint(Sketcher.Constraint("DistanceY", -1, 1, 73, 3, 119.800181))
sketch1.addConstraint(Sketcher.Constraint("DistanceX", -1, 1, 0, 2, 55.75829))
sketch1.addConstraint(Sketcher.Constraint("DistanceY", -1, 1, 5, 2, 53.800181))
sketch1.addConstraint(Sketcher.Constraint("DistanceY", -1, 1, 6, 1, 53.800181))
sketch1.addConstraint(Sketcher.Constraint("DistanceX", 11, 2, -1, 1, 55.75829))
sketch1.addConstraint(Sketcher.Constraint("DistanceX", 13, 2, -1, 1, 139.08805))
sketch1.addConstraint(Sketcher.Constraint("DistanceX", 14, 2, -1, 1, 127.971791))
sketch1.addConstraint(Sketcher.Constraint("DistanceY", 14, 2, -1, 1, 61.890471))
sketch1.addConstraint(Sketcher.Constraint("DistanceX", 15, 2, -1, 1, 95.205459))
sketch1.addConstraint(Sketcher.Constraint("DistanceX", 16, 2, -1, 1, 92.011871))
sketch1.addConstraint(Sketcher.Constraint("DistanceY", 17, 2, -1, 1, 23.435989))
sketch1.addConstraint(Sketcher.Constraint("DistanceX", 19, 2, -1, 1, 88.011871))
sketch1.addConstraint(Sketcher.Constraint("DistanceY", 19, 2, -1, 1, 55.43248))
sketch1.addConstraint(Sketcher.Constraint("DistanceX", 21, 2, -1, 1, 117.340439))
sketch1.addConstraint(Sketcher.Constraint("DistanceY", 25, 2, -1, 1, 99.135512))
sketch1.addConstraint(Sketcher.Constraint("DistanceY", 28, 2, -1, 1, 55.35013))
sketch1.addConstraint(Sketcher.Constraint("DistanceY", 30, 1, -1, 1, 23.435989))
sketch1.addConstraint(Sketcher.Constraint("DistanceX", -1, 1, 33, 2, 128.262549))
sketch1.addConstraint(Sketcher.Constraint("DistanceX", -1, 1, 34, 2, 137.47585))
sketch1.addConstraint(Sketcher.Constraint("Distance", 0, 138.039827))
sketch1.addConstraint(Sketcher.Constraint("Distance", 16, 6.387175))
sketch1.addConstraint(Sketcher.Constraint("Distance", 17, 50.136575))
sketch1.addConstraint(Sketcher.Constraint("Distance", 19, 50.136575))
sketch1.addConstraint(Sketcher.Constraint("Distance", 22, 18.519764))
sketch1.addConstraint(Sketcher.Constraint("Distance", 26, 22.763287))
sketch1.addConstraint(Sketcher.Constraint("Distance", 28, 5.856406))
sketch1.addConstraint(Sketcher.Constraint("Distance", 29, 49.971877))
sketch1.addConstraint(Sketcher.Constraint("Distance", 31, 49.971877))
sketch1.addConstraint(Sketcher.Constraint("DistanceX", -1, 1, 30, 3, 46.592323))
sketch1.addConstraint(Sketcher.Constraint("DistanceY", 36, 3, -1, 1, 79.385662))
sketch1.addConstraint(Sketcher.Constraint("DistanceY", 37, 3, -1, 1, 79.385662))
sketch1.addConstraint(Sketcher.Constraint("DistanceY", 38, 3, -1, 1, 79.385662))
sketch1.addConstraint(Sketcher.Constraint("DistanceY", 44, 3, -1, 1, 71.485662))
sketch1.addConstraint(Sketcher.Constraint("DistanceY", 46, 3, -1, 1, 67.285662))
sketch1.addConstraint(Sketcher.Constraint("DistanceY", 47, 3, -1, 1, 74.885662))
sketch1.addConstraint(Sketcher.Constraint("DistanceY", 49, 3, -1, 1, 26.341606))
sketch1.addConstraint(Sketcher.Constraint("DistanceY", 52, 3, -1, 1, 86.485662))
sketch1.addConstraint(Sketcher.Constraint("DistanceY", 54, 3, -1, 1, 67.285662))
sketch1.addConstraint(Sketcher.Constraint("DistanceY", 56, 3, -1, 1, 79.385662))
sketch1.addConstraint(Sketcher.Constraint("DistanceY", 57, 3, -1, 1, 79.385662))
sketch1.addConstraint(Sketcher.Constraint("DistanceY", 59, 3, -1, 1, 79.385662))
sketch1.addConstraint(Sketcher.Constraint("DistanceY", 64, 3, -1, 1, 26.341606))
sketch1.addConstraint(Sketcher.Constraint("DistanceY", -1, 1, 69, 3, 133.873094))
sketch1.addConstraint(Sketcher.Constraint("DistanceY", -1, 1, 74, 3, 133.873094))
sketch1.addConstraint(Sketcher.Constraint("DistanceX", 20, 2, -1, 1, 84.574107))
sketch1.addConstraint(Sketcher.Constraint("DistanceX", 23, 2, -1, 1, 69.019913))
sketch1.addConstraint(Sketcher.Constraint("DistanceX", -1, 1, 27, 2, 84.941035))
sketch1.addConstraint(Sketcher.Constraint("DistanceX", -1, 1, 31, 2, 91.869238))
sketch1.addConstraint(Sketcher.Constraint("DistanceY", 43, 2, -1, 1, 71.485662))
sketch1.addConstraint(Sketcher.Constraint("DistanceY", 44, 1, -1, 1, 71.485662))
sketch1.addConstraint(Sketcher.Constraint("DistanceY", 51, 2, -1, 1, 86.485662))
sketch1.addConstraint(Sketcher.Constraint("DistanceY", 52, 1, -1, 1, 86.485662))
pad1 = body.newObject("PartDesign::Pad", "Pad")
pad1.Profile = sketch1
pad1.Length = 11

doc.recompute()
